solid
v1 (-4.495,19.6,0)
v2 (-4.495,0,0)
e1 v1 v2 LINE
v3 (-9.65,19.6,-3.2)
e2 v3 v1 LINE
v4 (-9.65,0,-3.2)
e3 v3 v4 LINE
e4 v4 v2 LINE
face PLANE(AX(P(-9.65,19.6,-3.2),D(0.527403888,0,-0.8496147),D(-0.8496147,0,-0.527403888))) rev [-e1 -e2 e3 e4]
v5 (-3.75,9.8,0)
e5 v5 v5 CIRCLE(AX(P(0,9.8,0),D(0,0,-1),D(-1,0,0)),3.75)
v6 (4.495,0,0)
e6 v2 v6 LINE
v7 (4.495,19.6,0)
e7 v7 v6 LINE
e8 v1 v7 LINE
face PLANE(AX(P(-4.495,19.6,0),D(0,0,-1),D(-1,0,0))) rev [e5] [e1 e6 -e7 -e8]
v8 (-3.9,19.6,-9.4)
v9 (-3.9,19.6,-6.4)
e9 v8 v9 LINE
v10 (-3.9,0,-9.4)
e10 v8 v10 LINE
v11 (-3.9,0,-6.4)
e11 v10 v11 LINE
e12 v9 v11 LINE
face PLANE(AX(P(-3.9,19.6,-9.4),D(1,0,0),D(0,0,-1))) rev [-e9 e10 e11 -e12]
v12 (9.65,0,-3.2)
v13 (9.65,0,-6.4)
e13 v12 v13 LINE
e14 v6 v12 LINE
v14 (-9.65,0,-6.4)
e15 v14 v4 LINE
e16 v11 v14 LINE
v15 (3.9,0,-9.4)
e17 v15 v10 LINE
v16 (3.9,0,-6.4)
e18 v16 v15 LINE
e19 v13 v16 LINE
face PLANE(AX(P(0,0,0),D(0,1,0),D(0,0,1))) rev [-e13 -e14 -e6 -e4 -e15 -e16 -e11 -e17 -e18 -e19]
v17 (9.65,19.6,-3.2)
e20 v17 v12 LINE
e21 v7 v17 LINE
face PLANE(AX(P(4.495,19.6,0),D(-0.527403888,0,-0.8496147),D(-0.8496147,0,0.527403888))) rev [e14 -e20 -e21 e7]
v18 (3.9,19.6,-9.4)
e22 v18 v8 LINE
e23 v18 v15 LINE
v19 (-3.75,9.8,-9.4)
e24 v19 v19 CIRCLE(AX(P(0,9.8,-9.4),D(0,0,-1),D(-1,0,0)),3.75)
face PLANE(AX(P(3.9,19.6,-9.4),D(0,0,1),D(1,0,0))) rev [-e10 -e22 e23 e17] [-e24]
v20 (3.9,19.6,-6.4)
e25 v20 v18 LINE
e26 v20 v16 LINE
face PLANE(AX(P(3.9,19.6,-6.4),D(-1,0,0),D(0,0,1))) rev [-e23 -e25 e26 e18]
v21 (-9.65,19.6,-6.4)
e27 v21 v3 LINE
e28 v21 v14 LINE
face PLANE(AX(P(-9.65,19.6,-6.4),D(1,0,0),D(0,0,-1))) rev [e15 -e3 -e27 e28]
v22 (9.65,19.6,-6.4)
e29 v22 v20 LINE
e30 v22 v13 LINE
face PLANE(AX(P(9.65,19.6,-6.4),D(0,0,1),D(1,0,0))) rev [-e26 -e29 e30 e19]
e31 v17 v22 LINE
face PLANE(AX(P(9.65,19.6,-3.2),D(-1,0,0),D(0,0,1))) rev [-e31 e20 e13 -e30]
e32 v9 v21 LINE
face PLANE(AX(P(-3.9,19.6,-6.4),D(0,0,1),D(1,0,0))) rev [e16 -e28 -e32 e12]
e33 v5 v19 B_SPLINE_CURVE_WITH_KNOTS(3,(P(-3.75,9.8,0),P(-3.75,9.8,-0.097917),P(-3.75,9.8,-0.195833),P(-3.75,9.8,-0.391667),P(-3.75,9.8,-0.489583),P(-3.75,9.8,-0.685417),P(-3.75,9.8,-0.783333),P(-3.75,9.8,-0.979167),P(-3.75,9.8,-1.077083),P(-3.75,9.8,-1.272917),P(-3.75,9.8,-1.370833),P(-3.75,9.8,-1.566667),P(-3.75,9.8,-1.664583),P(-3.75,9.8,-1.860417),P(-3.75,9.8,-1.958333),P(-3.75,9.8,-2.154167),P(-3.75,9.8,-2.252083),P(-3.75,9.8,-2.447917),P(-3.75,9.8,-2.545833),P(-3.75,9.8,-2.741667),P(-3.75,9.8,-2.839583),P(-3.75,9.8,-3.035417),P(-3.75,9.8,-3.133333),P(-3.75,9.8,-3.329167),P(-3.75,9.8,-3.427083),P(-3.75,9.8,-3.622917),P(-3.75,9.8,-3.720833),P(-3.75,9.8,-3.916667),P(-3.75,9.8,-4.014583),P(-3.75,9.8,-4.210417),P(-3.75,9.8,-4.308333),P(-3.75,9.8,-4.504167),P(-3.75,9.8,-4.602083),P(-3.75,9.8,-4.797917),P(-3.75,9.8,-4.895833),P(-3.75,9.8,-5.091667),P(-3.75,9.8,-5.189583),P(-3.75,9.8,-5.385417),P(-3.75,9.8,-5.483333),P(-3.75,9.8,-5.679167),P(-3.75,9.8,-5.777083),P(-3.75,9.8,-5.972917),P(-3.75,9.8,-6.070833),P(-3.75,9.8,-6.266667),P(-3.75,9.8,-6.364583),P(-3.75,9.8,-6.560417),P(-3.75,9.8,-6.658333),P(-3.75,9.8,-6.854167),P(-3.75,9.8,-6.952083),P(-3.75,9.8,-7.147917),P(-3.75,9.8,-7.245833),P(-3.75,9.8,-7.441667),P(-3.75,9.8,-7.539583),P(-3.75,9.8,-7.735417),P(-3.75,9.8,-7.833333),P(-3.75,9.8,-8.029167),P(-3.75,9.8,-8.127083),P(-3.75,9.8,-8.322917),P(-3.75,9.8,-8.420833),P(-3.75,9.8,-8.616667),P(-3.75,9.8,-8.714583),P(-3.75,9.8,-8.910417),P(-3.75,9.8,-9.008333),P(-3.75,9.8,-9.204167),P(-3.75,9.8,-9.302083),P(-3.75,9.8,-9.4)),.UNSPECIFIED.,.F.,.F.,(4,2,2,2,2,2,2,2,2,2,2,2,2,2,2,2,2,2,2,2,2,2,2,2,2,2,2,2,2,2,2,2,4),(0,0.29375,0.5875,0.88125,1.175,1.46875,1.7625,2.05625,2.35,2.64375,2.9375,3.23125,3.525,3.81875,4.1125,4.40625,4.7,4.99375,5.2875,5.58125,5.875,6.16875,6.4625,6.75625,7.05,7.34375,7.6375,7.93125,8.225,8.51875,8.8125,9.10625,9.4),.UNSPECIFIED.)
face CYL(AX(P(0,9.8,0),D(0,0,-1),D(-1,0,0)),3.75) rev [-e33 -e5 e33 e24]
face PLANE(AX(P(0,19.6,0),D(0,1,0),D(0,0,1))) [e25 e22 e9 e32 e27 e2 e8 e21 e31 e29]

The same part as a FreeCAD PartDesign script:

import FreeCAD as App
import Part
import Sketcher
from FreeCAD import Vector

doc = App.newDocument("Part")
params = doc.addObject("Spreadsheet::Sheet", "Params")
for row, (alias, value) in enumerate([
    ("sketch1_height", "3 mm"),
    ("sketch1_width", "7.8 mm"),
    ("sketch1_height2", "3.2 mm"),
    ("sketch1_width2", "8.99 mm"),
    ("sketch1_width3", "5.75 mm"),
    ("pad1_length", "19.6 mm"),
    ("sketch2_diameter", "7.5 mm"),
], start=1):
    params.set(f"A{row}", alias)
    params.set(f"B{row}", "=" + value)
    params.setAlias(f"B{row}", alias)

body = doc.addObject("PartDesign::Body", "Body")

# Sketch on XZ plane
sketch1 = body.newObject("Sketcher::SketchObject", "Sketch")
sketch1.AttachmentSupport = (doc.getObject("XZ_Plane"), [""])
sketch1.MapMode = "FlatFace"
sketch1.addGeometry([
    Part.LineSegment(Vector(-4.5, 0, 0), Vector(4.5, 0, 0)),  # 0
    Part.LineSegment(Vector(4.5, 0, 0), Vector(9.7, -3.2, 0)),  # 1
    Part.LineSegment(Vector(9.7, -3.2, 0), Vector(9.7, -6.4, 0)),  # 2
    Part.LineSegment(Vector(9.7, -6.4, 0), Vector(3.9, -6.4, 0)),  # 3
    Part.LineSegment(Vector(3.9, -6.4, 0), Vector(3.9, -9.4, 0)),  # 4
    Part.LineSegment(Vector(3.9, -9.4, 0), Vector(-3.9, -9.4, 0)),  # 5
    Part.LineSegment(Vector(-3.9, -9.4, 0), Vector(-3.9, -6.4, 0)),  # 6
    Part.LineSegment(Vector(-3.9, -6.4, 0), Vector(-9.7, -6.4, 0)),  # 7
    Part.LineSegment(Vector(-9.7, -6.4, 0), Vector(-9.7, -3.2, 0)),  # 8
    Part.LineSegment(Vector(-9.7, -3.2, 0), Vector(-4.5, 0, 0)),  # 9
], False)
sketch1.addConstraint([
    Sketcher.Constraint("Coincident", 0, 2, 1, 1),
    Sketcher.Constraint("Coincident", 1, 2, 2, 1),
    Sketcher.Constraint("Coincident", 2, 2, 3, 1),
    Sketcher.Constraint("Coincident", 3, 2, 4, 1),
    Sketcher.Constraint("Coincident", 4, 2, 5, 1),
    Sketcher.Constraint("Coincident", 5, 2, 6, 1),
    Sketcher.Constraint("Coincident", 6, 2, 7, 1),
    Sketcher.Constraint("Coincident", 7, 2, 8, 1),
    Sketcher.Constraint("Coincident", 8, 2, 9, 1),
    Sketcher.Constraint("Coincident", 9, 2, 0, 1),
    Sketcher.Constraint("Horizontal", 0),
    Sketcher.Constraint("Vertical", 2),
    Sketcher.Constraint("Horizontal", 3),
    Sketcher.Constraint("Vertical", 4),
    Sketcher.Constraint("Horizontal", 5),
    Sketcher.Constraint("Vertical", 6),
    Sketcher.Constraint("Horizontal", 7),
    Sketcher.Constraint("Vertical", 8),
    Sketcher.Constraint("Symmetric", 0, 2, 9, 2, -1, 1),
    Sketcher.Constraint("Symmetric", 3, 2, 6, 2, -2),
    Sketcher.Constraint("Symmetric", 1, 2, 8, 2, -2),
    Sketcher.Constraint("DistanceY", 4, 2, 4, 1, 3.0),
    Sketcher.Constraint("DistanceX", 5, 2, 5, 1, 7.8),
    Sketcher.Constraint("DistanceY", 2, 2, 2, 1, 3.2),
    Sketcher.Constraint("DistanceX", 0, 1, 0, 2, 8.99),
    Sketcher.Constraint("DistanceX", 3, 2, 3, 1, 5.75),
    Sketcher.Constraint("DistanceY", 1, 2, -1, 1, 3.2),
])
sketch1.setExpression("Constraints[21]", "Params.sketch1_height")
sketch1.setExpression("Constraints[22]", "Params.sketch1_width")
sketch1.setExpression("Constraints[23]", "Params.sketch1_height2")
sketch1.setExpression("Constraints[24]", "Params.sketch1_width2")
sketch1.setExpression("Constraints[25]", "Params.sketch1_width3")
pad1 = body.newObject("PartDesign::Pad", "Pad")
pad1.Profile = sketch1
pad1.setExpression("Length", "Params.pad1_length")
pad1.Reversed = True

# Sketch on XY plane
sketch2 = body.newObject("Sketcher::SketchObject", "Sketch001")
sketch2.AttachmentSupport = (doc.getObject("XY_Plane"), [""])
sketch2.MapMode = "FlatFace"
sketch2.AttachmentOffset = App.Placement(Vector(0, 0, -9.4), App.Rotation())
sketch2.addGeometry(Part.Circle(Vector(0, 9.8, 0), Vector(0, 0, 1), 3.8), False)
sketch2.addConstraint([
    Sketcher.Constraint("PointOnObject", 0, 3, -2),
    Sketcher.Constraint("Diameter", 0, 7.5),
    Sketcher.Constraint("DistanceY", -1, 1, 0, 3, 9.8),
])
sketch2.setExpression("Constraints[1]", "Params.sketch2_diameter")
pocket1 = body.newObject("PartDesign::Pocket", "Pocket")
pocket1.Profile = sketch2
pocket1.Type = "ThroughAll"
pocket1.Reversed = True

doc.recompute()
